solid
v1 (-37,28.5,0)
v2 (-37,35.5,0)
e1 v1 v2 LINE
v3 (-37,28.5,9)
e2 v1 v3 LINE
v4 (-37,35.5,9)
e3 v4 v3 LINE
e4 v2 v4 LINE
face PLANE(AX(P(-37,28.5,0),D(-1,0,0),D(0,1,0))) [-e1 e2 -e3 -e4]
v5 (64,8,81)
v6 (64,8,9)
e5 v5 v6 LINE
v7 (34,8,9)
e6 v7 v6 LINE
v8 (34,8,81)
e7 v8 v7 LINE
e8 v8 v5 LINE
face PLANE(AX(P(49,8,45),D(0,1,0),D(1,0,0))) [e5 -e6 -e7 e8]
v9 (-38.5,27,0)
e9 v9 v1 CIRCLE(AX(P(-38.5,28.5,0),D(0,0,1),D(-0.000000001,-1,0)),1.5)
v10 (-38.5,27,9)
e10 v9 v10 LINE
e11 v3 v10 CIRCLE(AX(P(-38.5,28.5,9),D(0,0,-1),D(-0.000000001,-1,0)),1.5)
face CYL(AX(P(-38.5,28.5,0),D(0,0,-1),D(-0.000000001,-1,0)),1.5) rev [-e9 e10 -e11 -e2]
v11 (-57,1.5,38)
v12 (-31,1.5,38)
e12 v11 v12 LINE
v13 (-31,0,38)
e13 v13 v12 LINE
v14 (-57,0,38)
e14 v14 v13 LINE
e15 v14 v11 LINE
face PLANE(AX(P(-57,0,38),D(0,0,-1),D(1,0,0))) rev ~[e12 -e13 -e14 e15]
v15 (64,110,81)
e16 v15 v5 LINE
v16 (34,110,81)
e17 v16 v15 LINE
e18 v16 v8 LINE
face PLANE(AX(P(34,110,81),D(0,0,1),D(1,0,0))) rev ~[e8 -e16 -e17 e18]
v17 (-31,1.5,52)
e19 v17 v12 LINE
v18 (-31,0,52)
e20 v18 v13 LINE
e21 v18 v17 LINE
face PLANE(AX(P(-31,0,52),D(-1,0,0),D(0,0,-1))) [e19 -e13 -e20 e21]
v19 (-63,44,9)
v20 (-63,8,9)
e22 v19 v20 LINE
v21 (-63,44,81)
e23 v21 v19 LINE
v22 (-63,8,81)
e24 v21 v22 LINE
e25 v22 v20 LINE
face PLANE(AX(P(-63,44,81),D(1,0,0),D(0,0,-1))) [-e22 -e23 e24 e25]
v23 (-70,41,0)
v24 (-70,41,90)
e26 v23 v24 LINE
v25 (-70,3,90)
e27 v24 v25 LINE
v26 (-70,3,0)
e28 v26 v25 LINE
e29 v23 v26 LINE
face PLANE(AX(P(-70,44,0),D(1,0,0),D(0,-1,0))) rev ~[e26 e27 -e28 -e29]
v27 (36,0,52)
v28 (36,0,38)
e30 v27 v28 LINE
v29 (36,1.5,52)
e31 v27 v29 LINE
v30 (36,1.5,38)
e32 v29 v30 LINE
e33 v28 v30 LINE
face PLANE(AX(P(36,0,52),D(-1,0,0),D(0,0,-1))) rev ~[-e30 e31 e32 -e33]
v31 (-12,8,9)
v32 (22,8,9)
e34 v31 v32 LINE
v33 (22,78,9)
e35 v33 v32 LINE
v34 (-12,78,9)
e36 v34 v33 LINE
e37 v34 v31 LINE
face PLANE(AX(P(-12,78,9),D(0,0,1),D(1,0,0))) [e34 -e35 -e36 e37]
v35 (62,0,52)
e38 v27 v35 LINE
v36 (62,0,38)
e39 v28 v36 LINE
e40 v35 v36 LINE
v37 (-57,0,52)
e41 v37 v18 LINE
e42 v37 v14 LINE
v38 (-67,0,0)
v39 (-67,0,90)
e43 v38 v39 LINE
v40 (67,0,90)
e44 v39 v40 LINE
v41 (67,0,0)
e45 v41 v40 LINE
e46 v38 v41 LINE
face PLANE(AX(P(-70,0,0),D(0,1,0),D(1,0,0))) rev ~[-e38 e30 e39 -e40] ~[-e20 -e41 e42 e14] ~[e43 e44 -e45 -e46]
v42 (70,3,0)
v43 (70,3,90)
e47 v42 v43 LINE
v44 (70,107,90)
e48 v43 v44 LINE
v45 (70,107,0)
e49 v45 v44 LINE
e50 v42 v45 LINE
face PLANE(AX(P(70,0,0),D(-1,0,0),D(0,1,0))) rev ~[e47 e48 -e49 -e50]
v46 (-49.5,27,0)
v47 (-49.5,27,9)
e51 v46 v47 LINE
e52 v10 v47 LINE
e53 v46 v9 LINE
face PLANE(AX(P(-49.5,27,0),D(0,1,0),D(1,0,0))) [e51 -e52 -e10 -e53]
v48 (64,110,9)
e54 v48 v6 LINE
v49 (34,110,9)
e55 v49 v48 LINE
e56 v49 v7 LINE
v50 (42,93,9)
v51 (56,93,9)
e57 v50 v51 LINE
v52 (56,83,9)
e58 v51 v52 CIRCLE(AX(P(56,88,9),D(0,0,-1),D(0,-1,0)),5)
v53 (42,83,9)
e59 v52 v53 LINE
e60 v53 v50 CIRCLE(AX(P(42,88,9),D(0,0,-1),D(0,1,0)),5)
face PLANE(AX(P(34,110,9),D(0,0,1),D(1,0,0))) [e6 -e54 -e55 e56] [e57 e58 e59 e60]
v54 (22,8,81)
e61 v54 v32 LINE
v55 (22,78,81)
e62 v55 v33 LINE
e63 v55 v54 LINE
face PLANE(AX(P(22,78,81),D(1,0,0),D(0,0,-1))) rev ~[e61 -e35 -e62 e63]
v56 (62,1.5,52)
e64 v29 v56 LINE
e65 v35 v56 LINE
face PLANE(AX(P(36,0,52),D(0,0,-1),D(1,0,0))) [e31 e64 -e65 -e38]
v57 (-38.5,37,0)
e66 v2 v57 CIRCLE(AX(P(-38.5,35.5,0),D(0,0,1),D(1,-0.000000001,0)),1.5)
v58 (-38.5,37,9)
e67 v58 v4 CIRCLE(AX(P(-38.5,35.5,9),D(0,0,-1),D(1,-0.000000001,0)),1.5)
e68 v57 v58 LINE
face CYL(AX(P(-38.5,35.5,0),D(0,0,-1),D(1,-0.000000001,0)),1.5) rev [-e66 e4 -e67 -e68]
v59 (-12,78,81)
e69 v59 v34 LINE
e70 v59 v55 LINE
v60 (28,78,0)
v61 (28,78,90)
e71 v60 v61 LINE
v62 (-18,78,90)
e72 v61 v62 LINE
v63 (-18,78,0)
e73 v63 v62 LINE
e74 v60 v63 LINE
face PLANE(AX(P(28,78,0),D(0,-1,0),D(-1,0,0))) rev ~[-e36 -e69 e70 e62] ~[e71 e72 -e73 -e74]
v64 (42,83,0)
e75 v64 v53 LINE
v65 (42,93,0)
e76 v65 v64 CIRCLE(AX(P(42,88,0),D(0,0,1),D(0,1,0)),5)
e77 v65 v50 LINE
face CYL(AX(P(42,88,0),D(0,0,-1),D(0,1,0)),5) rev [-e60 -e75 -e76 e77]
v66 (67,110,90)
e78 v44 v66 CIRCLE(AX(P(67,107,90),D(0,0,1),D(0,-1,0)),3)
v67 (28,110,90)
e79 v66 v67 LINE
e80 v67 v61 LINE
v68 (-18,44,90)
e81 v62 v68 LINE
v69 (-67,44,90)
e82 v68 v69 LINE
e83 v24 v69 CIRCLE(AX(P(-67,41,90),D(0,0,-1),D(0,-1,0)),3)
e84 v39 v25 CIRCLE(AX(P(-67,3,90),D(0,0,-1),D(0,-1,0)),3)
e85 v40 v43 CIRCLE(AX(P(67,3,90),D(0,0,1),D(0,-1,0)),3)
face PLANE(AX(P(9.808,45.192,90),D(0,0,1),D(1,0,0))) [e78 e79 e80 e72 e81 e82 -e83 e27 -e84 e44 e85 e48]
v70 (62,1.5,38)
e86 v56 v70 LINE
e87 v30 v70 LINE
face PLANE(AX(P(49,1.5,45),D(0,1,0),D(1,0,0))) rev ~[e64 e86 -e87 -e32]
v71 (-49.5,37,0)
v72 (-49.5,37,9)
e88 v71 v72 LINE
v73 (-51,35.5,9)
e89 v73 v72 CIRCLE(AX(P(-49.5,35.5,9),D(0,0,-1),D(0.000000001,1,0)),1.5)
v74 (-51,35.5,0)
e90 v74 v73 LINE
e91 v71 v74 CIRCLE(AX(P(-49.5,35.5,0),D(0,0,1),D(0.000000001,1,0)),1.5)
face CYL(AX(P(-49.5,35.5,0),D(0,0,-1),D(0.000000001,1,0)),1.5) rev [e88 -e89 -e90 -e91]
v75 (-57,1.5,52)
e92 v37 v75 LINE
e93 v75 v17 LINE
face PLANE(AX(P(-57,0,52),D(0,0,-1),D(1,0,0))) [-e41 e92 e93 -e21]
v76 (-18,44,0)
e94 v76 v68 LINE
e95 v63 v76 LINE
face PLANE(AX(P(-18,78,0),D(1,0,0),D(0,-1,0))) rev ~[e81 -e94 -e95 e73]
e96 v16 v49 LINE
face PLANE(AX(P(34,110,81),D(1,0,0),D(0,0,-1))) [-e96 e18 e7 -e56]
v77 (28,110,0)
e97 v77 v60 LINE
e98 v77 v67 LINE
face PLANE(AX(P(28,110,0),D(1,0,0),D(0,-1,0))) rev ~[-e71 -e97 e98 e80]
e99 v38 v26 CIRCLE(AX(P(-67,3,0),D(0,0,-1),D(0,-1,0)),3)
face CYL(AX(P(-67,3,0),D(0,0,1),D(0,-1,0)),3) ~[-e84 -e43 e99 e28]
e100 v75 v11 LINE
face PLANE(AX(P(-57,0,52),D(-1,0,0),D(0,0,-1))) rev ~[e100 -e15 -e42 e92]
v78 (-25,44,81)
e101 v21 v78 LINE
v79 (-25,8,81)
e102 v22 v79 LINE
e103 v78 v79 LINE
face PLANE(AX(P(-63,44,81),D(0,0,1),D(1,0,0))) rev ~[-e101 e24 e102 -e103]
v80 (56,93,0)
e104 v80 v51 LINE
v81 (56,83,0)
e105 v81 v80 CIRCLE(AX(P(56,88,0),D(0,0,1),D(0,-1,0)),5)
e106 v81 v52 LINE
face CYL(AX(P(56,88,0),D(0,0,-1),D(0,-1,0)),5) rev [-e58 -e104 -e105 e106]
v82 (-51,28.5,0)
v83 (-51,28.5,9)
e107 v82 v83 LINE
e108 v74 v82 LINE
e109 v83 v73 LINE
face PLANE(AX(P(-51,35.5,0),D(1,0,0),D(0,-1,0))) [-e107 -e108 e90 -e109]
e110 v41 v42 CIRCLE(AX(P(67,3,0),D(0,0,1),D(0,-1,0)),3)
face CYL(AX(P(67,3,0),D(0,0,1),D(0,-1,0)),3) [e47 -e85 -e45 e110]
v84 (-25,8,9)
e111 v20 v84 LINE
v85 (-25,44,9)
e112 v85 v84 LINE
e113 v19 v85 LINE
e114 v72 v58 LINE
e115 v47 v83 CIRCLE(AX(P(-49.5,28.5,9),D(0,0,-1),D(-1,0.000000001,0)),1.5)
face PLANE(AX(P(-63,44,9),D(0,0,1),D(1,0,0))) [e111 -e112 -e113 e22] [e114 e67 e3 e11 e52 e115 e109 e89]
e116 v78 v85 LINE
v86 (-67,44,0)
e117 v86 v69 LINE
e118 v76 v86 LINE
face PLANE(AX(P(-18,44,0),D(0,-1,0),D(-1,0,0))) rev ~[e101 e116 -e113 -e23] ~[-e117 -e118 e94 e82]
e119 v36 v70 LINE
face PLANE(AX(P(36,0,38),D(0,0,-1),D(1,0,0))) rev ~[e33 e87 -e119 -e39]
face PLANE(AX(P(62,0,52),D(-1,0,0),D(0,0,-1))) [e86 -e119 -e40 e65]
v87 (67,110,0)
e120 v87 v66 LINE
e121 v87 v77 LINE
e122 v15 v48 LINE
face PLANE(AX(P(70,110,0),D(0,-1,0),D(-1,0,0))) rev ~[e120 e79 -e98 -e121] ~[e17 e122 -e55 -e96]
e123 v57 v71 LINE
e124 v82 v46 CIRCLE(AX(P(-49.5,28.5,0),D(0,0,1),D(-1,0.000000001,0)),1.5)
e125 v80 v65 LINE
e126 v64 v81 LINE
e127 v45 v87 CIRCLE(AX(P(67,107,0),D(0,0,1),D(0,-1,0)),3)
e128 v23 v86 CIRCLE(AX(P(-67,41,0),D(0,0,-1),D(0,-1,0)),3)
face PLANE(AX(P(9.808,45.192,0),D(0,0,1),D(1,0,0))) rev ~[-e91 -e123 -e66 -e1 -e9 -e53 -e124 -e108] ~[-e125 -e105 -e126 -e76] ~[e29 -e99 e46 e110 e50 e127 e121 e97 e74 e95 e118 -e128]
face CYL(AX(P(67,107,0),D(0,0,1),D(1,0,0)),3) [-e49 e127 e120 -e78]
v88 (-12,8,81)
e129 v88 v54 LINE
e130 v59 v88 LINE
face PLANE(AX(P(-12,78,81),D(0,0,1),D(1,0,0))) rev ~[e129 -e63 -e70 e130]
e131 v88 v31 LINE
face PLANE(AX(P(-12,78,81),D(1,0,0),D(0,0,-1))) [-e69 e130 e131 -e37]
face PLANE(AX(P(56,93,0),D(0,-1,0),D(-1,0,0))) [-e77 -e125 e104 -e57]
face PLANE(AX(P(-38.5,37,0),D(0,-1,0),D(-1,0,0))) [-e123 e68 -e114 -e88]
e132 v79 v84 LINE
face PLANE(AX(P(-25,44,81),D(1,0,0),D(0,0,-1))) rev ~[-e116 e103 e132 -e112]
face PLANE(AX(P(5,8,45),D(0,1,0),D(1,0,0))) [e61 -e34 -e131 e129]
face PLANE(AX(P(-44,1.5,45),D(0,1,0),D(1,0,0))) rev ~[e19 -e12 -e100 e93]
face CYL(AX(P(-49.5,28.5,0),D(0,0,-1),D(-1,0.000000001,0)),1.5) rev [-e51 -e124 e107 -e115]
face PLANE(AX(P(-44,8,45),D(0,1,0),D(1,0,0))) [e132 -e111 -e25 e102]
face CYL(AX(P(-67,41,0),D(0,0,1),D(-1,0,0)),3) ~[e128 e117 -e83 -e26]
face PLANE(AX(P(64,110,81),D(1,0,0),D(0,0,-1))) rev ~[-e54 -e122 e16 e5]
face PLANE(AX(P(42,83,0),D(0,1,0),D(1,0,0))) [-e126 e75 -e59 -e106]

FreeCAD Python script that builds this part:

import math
import FreeCAD as App
import Part
import Sketcher


def edges_at(feature, points):
    """Names of the edges that pass closest to the given points."""
    edges = feature.Shape.Edges
    near = lambda p: min(range(len(edges)), key=lambda i: edges[i].distToShape(Part.Vertex(*p))[0])
    return sorted({f"Edge{near(p) + 1}" for p in points})

doc = App.newDocument("Part")
body = doc.addObject("PartDesign::Body", "Body")

# Sketch on XY plane
sketch1 = body.newObject("Sketcher::SketchObject", "Sketch")
sketch1.AttachmentSupport = (doc.getObject("XY_Plane"), [""])
sketch1.MapMode = "FlatFace"
sketch1.addGeometry([
    Part.LineSegment(App.Vector(-70, 0, 0), App.Vector(70, 0, 0)),  # 0
    Part.LineSegment(App.Vector(70, 0, 0), App.Vector(70, 110, 0)),  # 1
    Part.LineSegment(App.Vector(70, 110, 0), App.Vector(28, 110, 0)),  # 2
    Part.LineSegment(App.Vector(28, 110, 0), App.Vector(28, 78, 0)),  # 3
    Part.LineSegment(App.Vector(28, 78, 0), App.Vector(-18, 78, 0)),  # 4
    Part.LineSegment(App.Vector(-18, 78, 0), App.Vector(-18, 44, 0)),  # 5
    Part.LineSegment(App.Vector(-18, 44, 0), App.Vector(-70, 44, 0)),  # 6
    Part.LineSegment(App.Vector(-70, 44, 0), App.Vector(-70, 0, 0)),  # 7
], False)
sketch1.addConstraint([
    Sketcher.Constraint("Coincident", 0, 2, 1, 1),
    Sketcher.Constraint("Coincident", 1, 2, 2, 1),
    Sketcher.Constraint("Coincident", 2, 2, 3, 1),
    Sketcher.Constraint("Coincident", 3, 2, 4, 1),
    Sketcher.Constraint("Coincident", 4, 2, 5, 1),
    Sketcher.Constraint("Coincident", 5, 2, 6, 1),
    Sketcher.Constraint("Coincident", 6, 2, 7, 1),
    Sketcher.Constraint("Coincident", 7, 2, 0, 1),
    Sketcher.Constraint("Horizontal", 0),
    Sketcher.Constraint("Vertical", 1),
    Sketcher.Constraint("Horizontal", 2),
    Sketcher.Constraint("Vertical", 3),
    Sketcher.Constraint("Horizontal", 4),
    Sketcher.Constraint("Vertical", 5),
    Sketcher.Constraint("Horizontal", 6),
    Sketcher.Constraint("Vertical", 7),
    Sketcher.Constraint("Symmetric", 0, 2, 7, 2, -1, 1),
    Sketcher.Constraint("DistanceX", 0, 1, 0, 2, 140.0),
    Sketcher.Constraint("DistanceX", 2, 2, 2, 1, 42.0),
    Sketcher.Constraint("DistanceX", 4, 2, 4, 1, 46.0),
    Sketcher.Constraint("DistanceY", 1, 1, 1, 2, 110.0),
    Sketcher.Constraint("DistanceY", 3, 2, 3, 1, 32.0),
    Sketcher.Constraint("DistanceY", 5, 2, 5, 1, 34.0),
])
pad1 = body.newObject("PartDesign::Pad", "Pad")
pad1.Profile = sketch1
pad1.Length = 90

# Sketch on XZ plane
sketch2 = body.newObject("Sketcher::SketchObject", "Sketch001")
sketch2.AttachmentSupport = (doc.getObject("XZ_Plane"), [""])
sketch2.MapMode = "FlatFace"
sketch2.AttachmentOffset = App.Placement(App.Vector(0, 0, -44), App.Rotation())
sketch2.addGeometry([
    Part.LineSegment(App.Vector(-63, 9, 0), App.Vector(-63, 81, 0)),
    Part.LineSegment(App.Vector(-63, 81, 0), App.Vector(-25, 81, 0)),
    Part.LineSegment(App.Vector(-25, 81, 0), App.Vector(-25, 9, 0)),
    Part.LineSegment(App.Vector(-25, 9, 0), App.Vector(-63, 9, 0)),
], False)
sketch2.addConstraint([
    Sketcher.Constraint("Coincident", 0, 2, 1, 1),
    Sketcher.Constraint("Coincident", 1, 2, 2, 1),
    Sketcher.Constraint("Coincident", 2, 2, 3, 1),
    Sketcher.Constraint("Coincident", 3, 2, 0, 1),
    Sketcher.Constraint("Vertical", 0),
    Sketcher.Constraint("Horizontal", 1),
    Sketcher.Constraint("Vertical", 2),
    Sketcher.Constraint("Horizontal", 3),
    Sketcher.Constraint("DistanceX", 1, 1, 1, 2, 38.0),
    Sketcher.Constraint("DistanceY", 0, 1, 0, 2, 72.0),
    Sketcher.Constraint("DistanceX", 0, 2, -1, 1, 63.0),
    Sketcher.Constraint("DistanceY", -1, 1, 0, 2, 81.0),
])
pocket1 = body.newObject("PartDesign::Pocket", "Pocket")
pocket1.Profile = sketch2
pocket1.Length = 36
pocket1.Reversed = True

# Sketch on XZ plane
sketch3 = body.newObject("Sketcher::SketchObject", "Sketch002")
sketch3.AttachmentSupport = (doc.getObject("XZ_Plane"), [""])
sketch3.MapMode = "FlatFace"
sketch3.AttachmentOffset = App.Placement(App.Vector(0, 0, -78), App.Rotation())
sketch3.addGeometry([
    Part.LineSegment(App.Vector(-12, 9, 0), App.Vector(-12, 81, 0)),
    Part.LineSegment(App.Vector(-12, 81, 0), App.Vector(22, 81, 0)),
    Part.LineSegment(App.Vector(22, 81, 0), App.Vector(22, 9, 0)),
    Part.LineSegment(App.Vector(22, 9, 0), App.Vector(-12, 9, 0)),
], False)
sketch3.addConstraint([
    Sketcher.Constraint("Coincident", 0, 2, 1, 1),
    Sketcher.Constraint("Coincident", 1, 2, 2, 1),
    Sketcher.Constraint("Coincident", 2, 2, 3, 1),
    Sketcher.Constraint("Coincident", 3, 2, 0, 1),
    Sketcher.Constraint("Vertical", 0),
    Sketcher.Constraint("Horizontal", 1),
    Sketcher.Constraint("Vertical", 2),
    Sketcher.Constraint("Horizontal", 3),
    Sketcher.Constraint("DistanceX", 1, 1, 1, 2, 34.0),
    Sketcher.Constraint("DistanceY", 0, 1, 0, 2, 72.0),
    Sketcher.Constraint("DistanceX", 0, 2, -1, 1, 12.0),
    Sketcher.Constraint("DistanceY", -1, 1, 0, 2, 81.0),
])
pocket2 = body.newObject("PartDesign::Pocket", "Pocket001")
pocket2.Profile = sketch3
pocket2.Length = 70
pocket2.Reversed = True

# Sketch on XZ plane
sketch4 = body.newObject("Sketcher::SketchObject", "Sketch003")
sketch4.AttachmentSupport = (doc.getObject("XZ_Plane"), [""])
sketch4.MapMode = "FlatFace"
sketch4.AttachmentOffset = App.Placement(App.Vector(0, 0, -110), App.Rotation())
sketch4.addGeometry([
    Part.LineSegment(App.Vector(34, 9, 0), App.Vector(34, 81, 0)),
    Part.LineSegment(App.Vector(34, 81, 0), App.Vector(64, 81, 0)),
    Part.LineSegment(App.Vector(64, 81, 0), App.Vector(64, 9, 0)),
    Part.LineSegment(App.Vector(64, 9, 0), App.Vector(34, 9, 0)),
], False)
sketch4.addConstraint([
    Sketcher.Constraint("Coincident", 0, 2, 1, 1),
    Sketcher.Constraint("Coincident", 1, 2, 2, 1),
    Sketcher.Constraint("Coincident", 2, 2, 3, 1),
    Sketcher.Constraint("Coincident", 3, 2, 0, 1),
    Sketcher.Constraint("Vertical", 0),
    Sketcher.Constraint("Horizontal", 1),
    Sketcher.Constraint("Vertical", 2),
    Sketcher.Constraint("Horizontal", 3),
    Sketcher.Constraint("DistanceX", 1, 1, 1, 2, 30.0),
    Sketcher.Constraint("DistanceY", 0, 1, 0, 2, 72.0),
    Sketcher.Constraint("DistanceX", -1, 1, 0, 2, 34.0),
    Sketcher.Constraint("DistanceY", -1, 1, 0, 2, 81.0),
])
pocket3 = body.newObject("PartDesign::Pocket", "Pocket002")
pocket3.Profile = sketch4
pocket3.Length = 102
pocket3.Reversed = True

# Sketch on XZ plane
sketch5 = body.newObject("Sketcher::SketchObject", "Sketch004")
sketch5.AttachmentSupport = (doc.getObject("XZ_Plane"), [""])
sketch5.MapMode = "FlatFace"
sketch5.addGeometry([
    Part.LineSegment(App.Vector(-57, 38, 0), App.Vector(-57, 52, 0)),  # 0
    Part.LineSegment(App.Vector(-57, 52, 0), App.Vector(-31, 52, 0)),  # 1
    Part.LineSegment(App.Vector(-31, 52, 0), App.Vector(-31, 38, 0)),  # 2
    Part.LineSegment(App.Vector(-31, 38, 0), App.Vector(-57, 38, 0)),  # 3
    Part.LineSegment(App.Vector(36, 38, 0), App.Vector(36, 52, 0)),  # 4
    Part.LineSegment(App.Vector(36, 52, 0), App.Vector(62, 52, 0)),  # 5
    Part.LineSegment(App.Vector(62, 52, 0), App.Vector(62, 38, 0)),  # 6
    Part.LineSegment(App.Vector(62, 38, 0), App.Vector(36, 38, 0)),  # 7
], False)
sketch5.addConstraint([
    Sketcher.Constraint("Coincident", 0, 2, 1, 1),
    Sketcher.Constraint("Coincident", 1, 2, 2, 1),
    Sketcher.Constraint("Coincident", 2, 2, 3, 1),
    Sketcher.Constraint("Coincident", 3, 2, 0, 1),
    Sketcher.Constraint("Coincident", 4, 2, 5, 1),
    Sketcher.Constraint("Coincident", 5, 2, 6, 1),
    Sketcher.Constraint("Coincident", 6, 2, 7, 1),
    Sketcher.Constraint("Coincident", 7, 2, 4, 1),
    Sketcher.Constraint("Vertical", 0),
    Sketcher.Constraint("Horizontal", 1),
    Sketcher.Constraint("Vertical", 2),
    Sketcher.Constraint("Horizontal", 3),
    Sketcher.Constraint("Vertical", 4),
    Sketcher.Constraint("Horizontal", 5),
    Sketcher.Constraint("Vertical", 6),
    Sketcher.Constraint("Horizontal", 7),
    Sketcher.Constraint("Horizontal", 1, 2, 4, 2),
    Sketcher.Constraint("Horizontal", 3, 2, 6, 2),
    Sketcher.Constraint("Equal", 3, 5),
    Sketcher.Constraint("DistanceX", 1, 1, 1, 2, 26.0),
    Sketcher.Constraint("DistanceY", 0, 1, 0, 2, 14.0),
    Sketcher.Constraint("DistanceX", 0, 2, -1, 1, 57.0),
    Sketcher.Constraint("DistanceY", -1, 1, 0, 2, 52.0),
    Sketcher.Constraint("DistanceX", -1, 1, 4, 2, 36.0),
])
pocket4 = body.newObject("PartDesign::Pocket", "Pocket003")
pocket4.Profile = sketch5
pocket4.Length = 1.5
doc.recompute()

fillet = body.newObject("PartDesign::Fillet", "Fillet")
fillet.Base = (pocket4, edges_at(pocket4, [
    (-70, 44, 45),
    (70, 110, 45),
    (70, 0, 45),
    (-70, 0, 45),
]))
fillet.Radius = 3

# Sketch on XY plane
sketch6 = body.newObject("Sketcher::SketchObject", "Sketch005")
sketch6.AttachmentSupport = (doc.getObject("XY_Plane"), [""])
sketch6.MapMode = "FlatFace"
sketch6.addGeometry([
    Part.LineSegment(App.Vector(-49.5, 27, 0), App.Vector(-38.5, 27, 0)),  # 0
    Part.ArcOfCircle(Part.Circle(App.Vector(-38.5, 28.5, 0), App.Vector(0, 0, 1), 1.5), math.radians(-90), math.radians(0)),  # 1
    Part.LineSegment(App.Vector(-37, 28.5, 0), App.Vector(-37, 35.5, 0)),  # 2
    Part.ArcOfCircle(Part.Circle(App.Vector(-38.5, 35.5, 0), App.Vector(0, 0, 1), 1.5), math.radians(0), math.radians(90)),  # 3
    Part.LineSegment(App.Vector(-38.5, 37, 0), App.Vector(-49.5, 37, 0)),  # 4
    Part.ArcOfCircle(Part.Circle(App.Vector(-49.5, 35.5, 0), App.Vector(0, 0, 1), 1.5), math.radians(90), math.radians(180)),  # 5
    Part.LineSegment(App.Vector(-51, 35.5, 0), App.Vector(-51, 28.5, 0)),  # 6
    Part.ArcOfCircle(Part.Circle(App.Vector(-49.5, 28.5, 0), App.Vector(0, 0, 1), 1.5), math.radians(180), math.radians(270)),  # 7
], False)
sketch6.addConstraint([
    Sketcher.Constraint("Tangent", 0, 2, 1, 1),
    Sketcher.Constraint("Tangent", 1, 2, 2, 1),
    Sketcher.Constraint("Tangent", 2, 2, 3, 1),
    Sketcher.Constraint("Tangent", 3, 2, 4, 1),
    Sketcher.Constraint("Tangent", 4, 2, 5, 1),
    Sketcher.Constraint("Tangent", 5, 2, 6, 1),
    Sketcher.Constraint("Tangent", 6, 2, 7, 1),
    Sketcher.Constraint("Tangent", 7, 2, 0, 1),
    Sketcher.Constraint("Horizontal", 0),
    Sketcher.Constraint("Vertical", 2),
    Sketcher.Constraint("Horizontal", 4),
    Sketcher.Constraint("Vertical", 6),
    Sketcher.Constraint("Equal", 1, 3),
    Sketcher.Constraint("Equal", 3, 5),
    Sketcher.Constraint("Equal", 5, 7),
    Sketcher.Constraint("Radius", 1, 1.5),
    Sketcher.Constraint("DistanceX", 0, 1, 0, 2, 11.0),
    Sketcher.Constraint("DistanceY", 2, 1, 2, 2, 7.0),
    Sketcher.Constraint("DistanceY", -1, 1, 0, 2, 27.0),
    Sketcher.Constraint("DistanceX", 1, 2, -1, 1, 37.0),
])
pocket5 = body.newObject("PartDesign::Pocket", "Pocket004")
pocket5.Profile = sketch6
pocket5.Length = 9.5
pocket5.Reversed = True

# Sketch on XY plane
sketch7 = body.newObject("Sketcher::SketchObject", "Sketch006")
sketch7.AttachmentSupport = (doc.getObject("XY_Plane"), [""])
sketch7.MapMode = "FlatFace"
sketch7.addGeometry([
    Part.LineSegment(App.Vector(42, 83, 0), App.Vector(56, 83, 0)),
    Part.ArcOfCircle(Part.Circle(App.Vector(56, 88, 0), App.Vector(0, 0, 1), 5), math.radians(-90), math.radians(90)),
    Part.LineSegment(App.Vector(56, 93, 0), App.Vector(42, 93, 0)),
    Part.ArcOfCircle(Part.Circle(App.Vector(42, 88, 0), App.Vector(0, 0, 1), 5), math.radians(90), math.radians(270)),
], False)
sketch7.addConstraint([
    Sketcher.Constraint("Tangent", 0, 2, 1, 1),
    Sketcher.Constraint("Tangent", 1, 2, 2, 1),
    Sketcher.Constraint("Tangent", 2, 2, 3, 1),
    Sketcher.Constraint("Tangent", 3, 2, 0, 1),
    Sketcher.Constraint("Horizontal", 0),
    Sketcher.Constraint("Horizontal", 2),
    Sketcher.Constraint("Radius", 1, 5.0),
    Sketcher.Constraint("DistanceX", 0, 1, 0, 2, 14.0),
    Sketcher.Constraint("DistanceX", -1, 1, 1, 3, 56.0),
    Sketcher.Constraint("DistanceY", -1, 1, 1, 3, 88.0),
])
pocket6 = body.newObject("PartDesign::Pocket", "Pocket005")
pocket6.Profile = sketch7
pocket6.Length = 9.5
pocket6.Reversed = True

doc.recompute()
